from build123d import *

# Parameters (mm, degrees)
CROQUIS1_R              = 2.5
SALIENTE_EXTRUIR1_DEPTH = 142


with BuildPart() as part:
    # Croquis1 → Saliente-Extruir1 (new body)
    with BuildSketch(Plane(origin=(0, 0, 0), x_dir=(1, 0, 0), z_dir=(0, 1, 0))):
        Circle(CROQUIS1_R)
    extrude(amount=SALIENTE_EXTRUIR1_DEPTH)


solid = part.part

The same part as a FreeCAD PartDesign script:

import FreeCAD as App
import Part
import Sketcher

V = App.Vector

doc = App.newDocument("Part")
params = doc.addObject("Spreadsheet::Sheet", "Params")
for row, (alias, value) in enumerate([
    ("sketch1_diameter", "5 mm"),
    ("pad1_length", "142 mm"),
], start=1):
    params.set(f"A{row}", alias)
    params.set(f"B{row}", "=" + value)
    params.setAlias(f"B{row}", alias)

body = doc.addObject("PartDesign::Body", "Body")

sketch1 = body.newObject("Sketcher::SketchObject", "Sketch")
sketch1.AttachmentSupport = (doc.getObject("XZ_Plane"), [""])
sketch1.MapMode = "FlatFace"
sketch1.addGeometry(Part.Circle(V(0, 0, 0), V(0, 0, 1), 2.5), False)
sketch1.addConstraint([
    Sketcher.Constraint("Coincident", 0, 3, -1, 1),
    Sketcher.Constraint("Diameter", 0, 5.0),
])
sketch1.setExpression("Constraints[1]", "Params.sketch1_diameter")
pad1 = body.newObject("PartDesign::Pad", "Pad")
pad1.Profile = sketch1
pad1.setExpression("Length", "Params.pad1_length")
pad1.Reversed = True

doc.recompute()
